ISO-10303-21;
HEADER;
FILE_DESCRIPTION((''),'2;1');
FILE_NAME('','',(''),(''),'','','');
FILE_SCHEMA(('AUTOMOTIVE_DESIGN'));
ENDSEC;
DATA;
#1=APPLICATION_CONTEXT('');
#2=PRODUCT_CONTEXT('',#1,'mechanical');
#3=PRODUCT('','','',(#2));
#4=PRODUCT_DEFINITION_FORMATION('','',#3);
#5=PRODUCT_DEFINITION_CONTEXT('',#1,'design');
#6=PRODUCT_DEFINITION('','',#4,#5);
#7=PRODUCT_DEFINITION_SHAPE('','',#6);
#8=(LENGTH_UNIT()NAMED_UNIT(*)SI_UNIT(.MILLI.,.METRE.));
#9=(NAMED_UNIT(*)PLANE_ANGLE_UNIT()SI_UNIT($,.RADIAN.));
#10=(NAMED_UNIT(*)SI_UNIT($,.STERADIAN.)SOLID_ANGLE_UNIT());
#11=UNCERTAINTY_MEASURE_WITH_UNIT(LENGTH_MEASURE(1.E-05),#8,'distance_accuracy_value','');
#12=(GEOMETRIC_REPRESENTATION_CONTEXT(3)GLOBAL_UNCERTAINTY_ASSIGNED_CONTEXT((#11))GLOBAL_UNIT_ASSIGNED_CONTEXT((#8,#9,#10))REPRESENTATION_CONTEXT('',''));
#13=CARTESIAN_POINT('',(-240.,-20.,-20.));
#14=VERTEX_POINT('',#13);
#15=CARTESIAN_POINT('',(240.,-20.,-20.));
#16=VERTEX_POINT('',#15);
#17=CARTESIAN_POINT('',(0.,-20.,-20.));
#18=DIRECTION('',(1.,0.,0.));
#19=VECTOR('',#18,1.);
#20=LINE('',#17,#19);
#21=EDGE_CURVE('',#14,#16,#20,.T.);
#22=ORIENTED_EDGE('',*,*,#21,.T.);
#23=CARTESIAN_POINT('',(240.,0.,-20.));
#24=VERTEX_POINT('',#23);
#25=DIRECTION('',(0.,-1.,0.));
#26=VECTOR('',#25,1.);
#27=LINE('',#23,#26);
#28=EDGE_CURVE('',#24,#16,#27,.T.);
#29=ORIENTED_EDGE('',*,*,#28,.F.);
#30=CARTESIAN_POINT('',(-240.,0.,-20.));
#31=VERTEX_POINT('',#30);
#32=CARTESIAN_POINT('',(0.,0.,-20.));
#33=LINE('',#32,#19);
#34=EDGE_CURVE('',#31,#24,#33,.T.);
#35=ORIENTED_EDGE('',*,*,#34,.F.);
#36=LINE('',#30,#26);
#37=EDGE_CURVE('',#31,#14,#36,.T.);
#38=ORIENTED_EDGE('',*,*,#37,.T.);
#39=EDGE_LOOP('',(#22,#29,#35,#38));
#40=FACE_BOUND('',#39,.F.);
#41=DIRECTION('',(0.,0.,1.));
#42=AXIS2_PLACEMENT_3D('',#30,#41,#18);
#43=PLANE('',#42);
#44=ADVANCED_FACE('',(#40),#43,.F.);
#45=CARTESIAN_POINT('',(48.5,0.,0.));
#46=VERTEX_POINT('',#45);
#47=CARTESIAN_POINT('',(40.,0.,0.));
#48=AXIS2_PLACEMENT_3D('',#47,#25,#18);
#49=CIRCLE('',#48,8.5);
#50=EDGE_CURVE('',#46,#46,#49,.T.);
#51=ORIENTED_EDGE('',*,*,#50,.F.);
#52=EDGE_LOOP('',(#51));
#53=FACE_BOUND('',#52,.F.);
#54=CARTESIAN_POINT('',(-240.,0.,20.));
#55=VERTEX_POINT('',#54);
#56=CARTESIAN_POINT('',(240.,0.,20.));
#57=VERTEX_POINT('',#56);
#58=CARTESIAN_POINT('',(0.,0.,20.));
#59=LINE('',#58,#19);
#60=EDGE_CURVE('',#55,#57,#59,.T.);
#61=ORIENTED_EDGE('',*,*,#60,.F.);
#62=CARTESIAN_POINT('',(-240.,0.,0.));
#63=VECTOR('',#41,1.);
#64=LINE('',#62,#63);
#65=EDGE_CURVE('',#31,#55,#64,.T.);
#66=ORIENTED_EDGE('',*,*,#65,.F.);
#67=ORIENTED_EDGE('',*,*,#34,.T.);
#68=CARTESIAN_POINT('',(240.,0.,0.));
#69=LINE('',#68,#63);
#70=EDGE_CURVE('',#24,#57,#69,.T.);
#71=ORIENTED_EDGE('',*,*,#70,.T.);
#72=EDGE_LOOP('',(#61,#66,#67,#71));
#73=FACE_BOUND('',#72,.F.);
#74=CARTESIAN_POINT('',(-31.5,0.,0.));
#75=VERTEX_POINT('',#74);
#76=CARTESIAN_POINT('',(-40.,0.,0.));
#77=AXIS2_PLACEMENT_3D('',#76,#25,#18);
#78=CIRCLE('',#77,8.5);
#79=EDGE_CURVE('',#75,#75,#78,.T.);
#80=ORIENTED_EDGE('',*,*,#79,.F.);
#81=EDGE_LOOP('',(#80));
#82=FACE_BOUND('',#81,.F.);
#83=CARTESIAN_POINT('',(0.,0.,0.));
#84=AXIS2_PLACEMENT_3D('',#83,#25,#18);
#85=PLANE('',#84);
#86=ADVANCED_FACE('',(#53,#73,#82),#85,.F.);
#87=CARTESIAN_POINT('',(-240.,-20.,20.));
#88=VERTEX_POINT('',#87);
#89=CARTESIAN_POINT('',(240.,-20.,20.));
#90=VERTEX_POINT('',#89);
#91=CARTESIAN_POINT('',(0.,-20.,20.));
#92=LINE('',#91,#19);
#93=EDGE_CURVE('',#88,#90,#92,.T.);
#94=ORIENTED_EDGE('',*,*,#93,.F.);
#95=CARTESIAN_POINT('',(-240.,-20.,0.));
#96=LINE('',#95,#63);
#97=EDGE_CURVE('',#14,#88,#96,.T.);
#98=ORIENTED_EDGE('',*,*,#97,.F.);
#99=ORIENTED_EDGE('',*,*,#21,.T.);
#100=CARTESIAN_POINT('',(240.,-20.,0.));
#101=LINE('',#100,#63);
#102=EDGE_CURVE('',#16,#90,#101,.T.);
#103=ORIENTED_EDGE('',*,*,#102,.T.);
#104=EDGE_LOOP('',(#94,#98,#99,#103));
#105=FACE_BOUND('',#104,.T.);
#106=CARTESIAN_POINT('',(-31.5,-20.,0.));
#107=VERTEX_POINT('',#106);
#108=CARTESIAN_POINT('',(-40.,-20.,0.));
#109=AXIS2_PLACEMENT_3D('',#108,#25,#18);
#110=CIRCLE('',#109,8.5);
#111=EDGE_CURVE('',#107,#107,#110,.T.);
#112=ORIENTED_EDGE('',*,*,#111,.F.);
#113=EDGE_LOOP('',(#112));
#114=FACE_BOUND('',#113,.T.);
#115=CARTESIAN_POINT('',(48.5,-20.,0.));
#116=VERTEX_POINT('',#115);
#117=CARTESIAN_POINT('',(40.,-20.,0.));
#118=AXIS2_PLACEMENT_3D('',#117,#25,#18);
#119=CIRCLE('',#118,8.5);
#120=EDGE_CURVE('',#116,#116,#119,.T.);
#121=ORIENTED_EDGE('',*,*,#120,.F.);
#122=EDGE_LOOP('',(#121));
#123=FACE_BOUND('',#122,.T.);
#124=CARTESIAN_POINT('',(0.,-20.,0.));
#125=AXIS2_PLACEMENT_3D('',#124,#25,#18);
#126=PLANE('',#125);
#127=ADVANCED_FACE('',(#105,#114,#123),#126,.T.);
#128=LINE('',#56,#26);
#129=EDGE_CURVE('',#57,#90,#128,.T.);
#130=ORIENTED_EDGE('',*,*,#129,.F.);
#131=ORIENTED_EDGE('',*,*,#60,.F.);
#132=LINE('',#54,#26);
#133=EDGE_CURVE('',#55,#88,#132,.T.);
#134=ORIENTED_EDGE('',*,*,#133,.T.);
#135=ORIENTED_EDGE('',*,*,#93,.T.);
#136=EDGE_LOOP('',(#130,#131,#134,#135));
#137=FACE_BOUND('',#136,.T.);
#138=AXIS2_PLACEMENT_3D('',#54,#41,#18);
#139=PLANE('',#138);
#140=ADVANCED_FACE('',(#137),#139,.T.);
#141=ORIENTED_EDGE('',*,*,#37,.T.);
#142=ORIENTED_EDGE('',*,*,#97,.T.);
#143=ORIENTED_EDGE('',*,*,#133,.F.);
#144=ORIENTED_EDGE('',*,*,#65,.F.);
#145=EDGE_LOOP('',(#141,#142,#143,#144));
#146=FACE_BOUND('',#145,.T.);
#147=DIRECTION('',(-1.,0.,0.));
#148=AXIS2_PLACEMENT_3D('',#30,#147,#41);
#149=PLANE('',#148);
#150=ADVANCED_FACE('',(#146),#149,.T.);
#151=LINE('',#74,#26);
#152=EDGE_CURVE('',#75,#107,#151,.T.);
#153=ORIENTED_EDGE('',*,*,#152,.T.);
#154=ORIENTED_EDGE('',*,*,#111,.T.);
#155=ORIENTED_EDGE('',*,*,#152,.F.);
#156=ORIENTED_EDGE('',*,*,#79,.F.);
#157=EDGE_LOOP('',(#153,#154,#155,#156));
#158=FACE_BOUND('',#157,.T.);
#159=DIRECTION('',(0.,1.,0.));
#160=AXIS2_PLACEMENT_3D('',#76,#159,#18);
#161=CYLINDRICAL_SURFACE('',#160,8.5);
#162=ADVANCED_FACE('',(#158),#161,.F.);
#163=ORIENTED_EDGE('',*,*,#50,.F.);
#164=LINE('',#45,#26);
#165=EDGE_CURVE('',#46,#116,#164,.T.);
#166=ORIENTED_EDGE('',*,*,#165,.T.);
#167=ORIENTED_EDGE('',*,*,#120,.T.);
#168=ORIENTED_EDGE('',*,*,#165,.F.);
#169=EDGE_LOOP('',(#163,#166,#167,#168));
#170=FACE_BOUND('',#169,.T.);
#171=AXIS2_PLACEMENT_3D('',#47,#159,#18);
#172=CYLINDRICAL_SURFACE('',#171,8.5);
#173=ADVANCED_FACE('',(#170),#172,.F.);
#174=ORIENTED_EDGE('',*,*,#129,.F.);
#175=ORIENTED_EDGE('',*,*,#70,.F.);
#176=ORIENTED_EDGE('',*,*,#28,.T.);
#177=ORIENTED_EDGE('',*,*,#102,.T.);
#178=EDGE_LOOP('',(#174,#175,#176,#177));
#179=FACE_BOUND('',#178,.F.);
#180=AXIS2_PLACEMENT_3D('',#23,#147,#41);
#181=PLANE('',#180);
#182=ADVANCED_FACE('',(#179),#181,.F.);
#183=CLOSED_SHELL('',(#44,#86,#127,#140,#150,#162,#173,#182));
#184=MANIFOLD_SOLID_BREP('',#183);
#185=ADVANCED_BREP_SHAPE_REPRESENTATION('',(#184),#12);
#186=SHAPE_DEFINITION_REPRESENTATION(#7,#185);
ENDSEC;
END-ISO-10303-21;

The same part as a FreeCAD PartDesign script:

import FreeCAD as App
import Part
import Sketcher
from FreeCAD import Vector


def add_polygon(sketch, points):
    """Adds a closed chain of lines whose ends are joined by coincident constraints."""
    first, n = sketch.GeometryCount, len(points)
    for a, b in zip(points, points[1:] + points[:1]):
        sketch.addGeometry(Part.LineSegment(App.Vector(*a, 0), App.Vector(*b, 0)), False)
    for i in range(n):
        sketch.addConstraint(Sketcher.Constraint("Coincident", first + i, 2, first + (i + 1) % n, 1))

doc = App.newDocument("Part")
body = doc.addObject("PartDesign::Body", "Body")

sketch1 = body.newObject("Sketcher::SketchObject", "Sketch")
sketch1.AttachmentSupport = (doc.getObject("XZ_Plane"), [""])
sketch1.MapMode = "FlatFace"
add_polygon(sketch1, [(-240, 20), (-240, -20), (240, -20), (240, 20)])
sketch1.addGeometry(Part.Circle(Vector(-40, 0, 0), Vector(0, 0, 1), 8), False)
sketch1.addGeometry(Part.Circle(Vector(40, 0, 0), Vector(0, 0, 1), 8), False)
sketch1.addConstraint(Sketcher.Constraint("Vertical", 0))
sketch1.addConstraint(Sketcher.Constraint("Horizontal", 1))
sketch1.addConstraint(Sketcher.Constraint("Vertical", 2))
sketch1.addConstraint(Sketcher.Constraint("Horizontal", 3))
sketch1.addConstraint(Sketcher.Constraint("Equal", 4, 5))
sketch1.addConstraint(Sketcher.Constraint("Symmetric", 4, 3, 5, 3, -1, 1))
sketch1.addConstraint(Sketcher.Constraint("Symmetric", 0, 2, 2, 2, -1, 1))
sketch1.addConstraint(Sketcher.Constraint("PointOnObject", 4, 3, -1))
sketch1.addConstraint(Sketcher.Constraint("Diameter", 4, 17.0))
sketch1.addConstraint(Sketcher.Constraint("DistanceX", 1, 1, 1, 2, 480.0))
sketch1.addConstraint(Sketcher.Constraint("DistanceY", 0, 2, 0, 1, 40.0))
sketch1.addConstraint(Sketcher.Constraint("DistanceX", 4, 3, -1, 1, 40.0))
pad1 = body.newObject("PartDesign::Pad", "Pad")
pad1.Profile = sketch1
pad1.Length = 20

doc.recompute()
